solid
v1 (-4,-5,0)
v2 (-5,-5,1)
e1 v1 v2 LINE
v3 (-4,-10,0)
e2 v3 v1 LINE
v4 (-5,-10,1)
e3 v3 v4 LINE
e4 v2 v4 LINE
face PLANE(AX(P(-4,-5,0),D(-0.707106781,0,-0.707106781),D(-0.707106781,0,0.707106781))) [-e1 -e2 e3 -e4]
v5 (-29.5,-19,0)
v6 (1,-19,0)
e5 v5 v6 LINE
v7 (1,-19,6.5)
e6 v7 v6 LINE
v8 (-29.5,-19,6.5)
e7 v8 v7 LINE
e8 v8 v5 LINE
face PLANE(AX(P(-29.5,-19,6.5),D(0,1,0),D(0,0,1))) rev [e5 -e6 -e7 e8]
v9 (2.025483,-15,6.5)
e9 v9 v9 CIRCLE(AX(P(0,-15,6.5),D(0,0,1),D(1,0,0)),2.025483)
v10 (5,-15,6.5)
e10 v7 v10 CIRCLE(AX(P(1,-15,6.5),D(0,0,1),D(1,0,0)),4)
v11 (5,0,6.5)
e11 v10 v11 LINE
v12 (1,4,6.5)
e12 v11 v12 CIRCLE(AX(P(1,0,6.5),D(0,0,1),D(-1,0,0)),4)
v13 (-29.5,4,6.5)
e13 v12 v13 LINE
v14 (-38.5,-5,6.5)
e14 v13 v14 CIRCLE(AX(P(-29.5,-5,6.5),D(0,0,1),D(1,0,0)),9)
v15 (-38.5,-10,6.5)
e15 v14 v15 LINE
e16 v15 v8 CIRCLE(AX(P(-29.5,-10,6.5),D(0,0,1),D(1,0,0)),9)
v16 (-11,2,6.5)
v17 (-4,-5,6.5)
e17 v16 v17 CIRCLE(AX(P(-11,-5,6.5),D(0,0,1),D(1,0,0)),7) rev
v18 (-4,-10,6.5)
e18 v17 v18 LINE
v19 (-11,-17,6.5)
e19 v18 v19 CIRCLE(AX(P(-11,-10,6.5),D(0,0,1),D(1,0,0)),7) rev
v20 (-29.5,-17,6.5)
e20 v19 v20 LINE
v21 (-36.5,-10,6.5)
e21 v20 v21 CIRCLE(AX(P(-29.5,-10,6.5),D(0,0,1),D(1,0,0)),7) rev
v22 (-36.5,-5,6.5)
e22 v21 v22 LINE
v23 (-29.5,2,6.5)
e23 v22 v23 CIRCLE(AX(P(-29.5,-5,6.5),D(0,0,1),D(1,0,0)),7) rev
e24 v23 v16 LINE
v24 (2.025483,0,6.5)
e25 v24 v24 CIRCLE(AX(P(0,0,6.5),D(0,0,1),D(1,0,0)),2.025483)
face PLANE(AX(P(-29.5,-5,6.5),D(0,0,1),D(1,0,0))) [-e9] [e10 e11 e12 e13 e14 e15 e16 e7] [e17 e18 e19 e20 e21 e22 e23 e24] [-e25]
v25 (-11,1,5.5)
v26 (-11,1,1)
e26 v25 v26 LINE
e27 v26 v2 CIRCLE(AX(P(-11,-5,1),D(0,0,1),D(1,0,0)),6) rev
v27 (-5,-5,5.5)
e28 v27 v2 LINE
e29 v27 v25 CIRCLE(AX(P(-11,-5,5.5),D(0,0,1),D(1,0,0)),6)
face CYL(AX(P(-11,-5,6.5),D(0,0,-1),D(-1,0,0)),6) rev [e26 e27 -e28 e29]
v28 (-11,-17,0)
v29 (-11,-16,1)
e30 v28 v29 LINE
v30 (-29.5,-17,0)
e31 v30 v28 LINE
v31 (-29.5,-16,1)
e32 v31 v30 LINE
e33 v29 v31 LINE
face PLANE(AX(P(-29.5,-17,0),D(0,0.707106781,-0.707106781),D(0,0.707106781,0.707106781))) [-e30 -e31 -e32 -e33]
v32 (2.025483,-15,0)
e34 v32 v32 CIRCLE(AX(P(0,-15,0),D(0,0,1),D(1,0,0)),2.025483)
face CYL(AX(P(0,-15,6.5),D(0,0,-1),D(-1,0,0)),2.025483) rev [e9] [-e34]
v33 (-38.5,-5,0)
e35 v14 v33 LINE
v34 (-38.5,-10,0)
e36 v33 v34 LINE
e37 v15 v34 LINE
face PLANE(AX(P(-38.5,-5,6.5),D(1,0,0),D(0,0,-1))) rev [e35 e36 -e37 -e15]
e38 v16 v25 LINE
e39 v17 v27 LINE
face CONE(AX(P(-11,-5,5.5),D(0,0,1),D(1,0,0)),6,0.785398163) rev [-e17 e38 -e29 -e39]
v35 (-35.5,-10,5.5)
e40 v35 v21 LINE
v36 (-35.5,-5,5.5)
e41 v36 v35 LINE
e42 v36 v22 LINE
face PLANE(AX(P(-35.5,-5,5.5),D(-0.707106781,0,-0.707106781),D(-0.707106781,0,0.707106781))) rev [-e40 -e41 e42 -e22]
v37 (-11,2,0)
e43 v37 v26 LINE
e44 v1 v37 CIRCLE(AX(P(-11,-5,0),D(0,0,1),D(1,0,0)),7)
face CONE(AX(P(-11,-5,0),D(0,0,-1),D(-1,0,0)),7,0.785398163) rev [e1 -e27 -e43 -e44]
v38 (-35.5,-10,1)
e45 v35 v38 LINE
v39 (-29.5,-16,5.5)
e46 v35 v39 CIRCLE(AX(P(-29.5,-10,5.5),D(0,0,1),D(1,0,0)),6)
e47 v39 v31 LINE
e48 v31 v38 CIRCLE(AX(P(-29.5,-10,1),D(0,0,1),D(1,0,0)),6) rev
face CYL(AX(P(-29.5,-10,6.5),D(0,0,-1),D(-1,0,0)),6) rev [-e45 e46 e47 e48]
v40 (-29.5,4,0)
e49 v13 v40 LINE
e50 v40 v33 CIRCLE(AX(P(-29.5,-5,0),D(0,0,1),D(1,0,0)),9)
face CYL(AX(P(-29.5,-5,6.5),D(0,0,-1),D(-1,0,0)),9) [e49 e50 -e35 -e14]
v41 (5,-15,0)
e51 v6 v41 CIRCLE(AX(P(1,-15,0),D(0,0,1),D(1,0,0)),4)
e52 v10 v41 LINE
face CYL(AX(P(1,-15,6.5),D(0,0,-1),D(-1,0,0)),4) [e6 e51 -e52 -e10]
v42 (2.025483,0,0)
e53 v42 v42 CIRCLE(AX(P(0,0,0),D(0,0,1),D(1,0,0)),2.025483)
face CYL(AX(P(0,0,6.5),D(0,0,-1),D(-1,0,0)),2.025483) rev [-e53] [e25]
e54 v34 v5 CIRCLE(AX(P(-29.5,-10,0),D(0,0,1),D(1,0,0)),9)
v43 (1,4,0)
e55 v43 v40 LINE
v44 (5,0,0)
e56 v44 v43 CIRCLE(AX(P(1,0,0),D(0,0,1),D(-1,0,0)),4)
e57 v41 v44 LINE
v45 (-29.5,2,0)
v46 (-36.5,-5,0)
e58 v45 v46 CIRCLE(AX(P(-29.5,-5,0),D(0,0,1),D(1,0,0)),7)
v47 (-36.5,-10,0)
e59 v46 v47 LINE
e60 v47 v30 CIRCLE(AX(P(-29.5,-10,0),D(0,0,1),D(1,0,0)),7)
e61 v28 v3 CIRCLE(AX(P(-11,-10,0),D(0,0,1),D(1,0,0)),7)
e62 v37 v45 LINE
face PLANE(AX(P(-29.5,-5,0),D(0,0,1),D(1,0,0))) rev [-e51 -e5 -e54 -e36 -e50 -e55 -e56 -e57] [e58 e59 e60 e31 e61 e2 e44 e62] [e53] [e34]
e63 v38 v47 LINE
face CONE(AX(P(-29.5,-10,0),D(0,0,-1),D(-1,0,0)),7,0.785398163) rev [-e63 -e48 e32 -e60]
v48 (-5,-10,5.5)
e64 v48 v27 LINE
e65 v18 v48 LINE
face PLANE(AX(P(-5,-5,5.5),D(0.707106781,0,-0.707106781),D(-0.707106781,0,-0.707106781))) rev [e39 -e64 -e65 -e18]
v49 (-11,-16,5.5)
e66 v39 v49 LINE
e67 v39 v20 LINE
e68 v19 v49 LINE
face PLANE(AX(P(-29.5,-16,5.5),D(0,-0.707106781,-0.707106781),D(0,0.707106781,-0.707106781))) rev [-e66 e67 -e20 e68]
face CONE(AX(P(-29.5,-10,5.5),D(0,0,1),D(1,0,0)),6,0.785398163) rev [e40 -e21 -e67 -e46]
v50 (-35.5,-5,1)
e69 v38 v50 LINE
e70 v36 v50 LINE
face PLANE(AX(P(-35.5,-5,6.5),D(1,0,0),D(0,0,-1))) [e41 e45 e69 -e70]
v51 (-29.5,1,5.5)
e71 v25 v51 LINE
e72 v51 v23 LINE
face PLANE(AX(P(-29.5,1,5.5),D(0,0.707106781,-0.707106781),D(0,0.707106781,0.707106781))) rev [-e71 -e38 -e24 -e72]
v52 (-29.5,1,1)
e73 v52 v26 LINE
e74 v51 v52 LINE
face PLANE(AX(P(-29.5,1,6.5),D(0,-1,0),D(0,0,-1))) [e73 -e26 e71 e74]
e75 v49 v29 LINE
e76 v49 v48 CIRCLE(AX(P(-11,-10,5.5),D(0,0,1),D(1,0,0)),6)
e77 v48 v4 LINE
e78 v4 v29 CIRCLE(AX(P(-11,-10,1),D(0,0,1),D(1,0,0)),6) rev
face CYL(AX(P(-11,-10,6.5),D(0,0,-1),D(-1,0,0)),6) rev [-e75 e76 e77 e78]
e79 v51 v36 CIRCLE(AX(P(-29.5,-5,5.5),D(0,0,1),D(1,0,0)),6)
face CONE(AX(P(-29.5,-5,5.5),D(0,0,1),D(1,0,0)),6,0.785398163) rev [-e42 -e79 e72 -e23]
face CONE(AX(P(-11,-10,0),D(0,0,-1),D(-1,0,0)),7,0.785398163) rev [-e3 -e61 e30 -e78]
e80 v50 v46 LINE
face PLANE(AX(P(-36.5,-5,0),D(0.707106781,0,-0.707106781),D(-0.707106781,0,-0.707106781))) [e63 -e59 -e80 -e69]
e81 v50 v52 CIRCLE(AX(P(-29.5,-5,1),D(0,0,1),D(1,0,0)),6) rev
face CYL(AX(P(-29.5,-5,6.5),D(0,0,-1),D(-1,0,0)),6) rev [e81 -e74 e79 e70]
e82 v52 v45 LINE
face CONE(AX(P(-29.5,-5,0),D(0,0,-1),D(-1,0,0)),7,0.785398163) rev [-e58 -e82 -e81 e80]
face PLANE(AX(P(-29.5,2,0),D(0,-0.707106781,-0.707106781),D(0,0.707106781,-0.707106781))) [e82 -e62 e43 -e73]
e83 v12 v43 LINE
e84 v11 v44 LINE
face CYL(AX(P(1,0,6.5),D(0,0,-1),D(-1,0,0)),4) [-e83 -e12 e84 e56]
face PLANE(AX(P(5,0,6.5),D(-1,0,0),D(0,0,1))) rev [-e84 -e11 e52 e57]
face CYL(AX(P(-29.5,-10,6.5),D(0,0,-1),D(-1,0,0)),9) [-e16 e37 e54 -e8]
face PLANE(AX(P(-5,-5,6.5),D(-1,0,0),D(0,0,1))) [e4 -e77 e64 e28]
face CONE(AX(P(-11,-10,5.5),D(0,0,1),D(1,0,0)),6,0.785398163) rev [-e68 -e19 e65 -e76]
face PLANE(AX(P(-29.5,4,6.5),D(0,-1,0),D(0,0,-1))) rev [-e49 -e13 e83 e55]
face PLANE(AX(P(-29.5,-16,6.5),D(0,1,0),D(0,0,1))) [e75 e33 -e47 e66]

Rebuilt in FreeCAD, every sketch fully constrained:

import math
import FreeCAD as App
import Part
import Sketcher
from FreeCAD import Vector
Q = App.Units.Quantity


def edges_at(feature, points):
    """Names of the edges that pass closest to the given points."""
    edges = feature.Shape.Edges
    near = lambda p: min(range(len(edges)), key=lambda i: edges[i].distToShape(Part.Vertex(*p))[0])
    return sorted({f"Edge{near(p) + 1}" for p in points})

doc = App.newDocument("Part")
params = doc.addObject("Spreadsheet::Sheet", "Params")
for row, (alias, value) in enumerate([
    ("sketch1_radius", "9 mm"),
    ("sketch1_radius2", "4 mm"),
    ("sketch1_radius3", "6 mm"),
    ("sketch1_height", "5 mm"),
    ("sketch1_width", "30.5 mm"),
    ("pad1_length", "6.5 mm"),
    ("chamfer_size", "1 mm"),
], start=1):
    params.set(f"A{row}", alias)
    params.set(f"B{row}", "=" + value)
    params.setAlias(f"B{row}", alias)

body = doc.addObject("PartDesign::Body", "Body")

# Sketch on XY plane
sketch1 = doc.addObject("Sketcher::SketchObject", "Sketch")
body.addObject(sketch1)
sketch1.AttachmentSupport = (doc.XY_Plane, [""])
sketch1.MapMode = "FlatFace"
sketch1.addGeometry([
    Part.LineSegment(Vector(1, 4, 0), Vector(-29.5, 4, 0)),  # 0
    Part.ArcOfCircle(Part.Circle(Vector(-29.5, -5, 0), Vector(0, 0, 1), 9), math.radians(90), math.radians(180)),  # 1
    Part.LineSegment(Vector(-38.5, -5, 0), Vector(-38.5, -10, 0)),  # 2
    Part.ArcOfCircle(Part.Circle(Vector(-29.5, -10, 0), Vector(0, 0, 1), 9), math.radians(180), math.radians(270)),  # 3
    Part.LineSegment(Vector(-29.5, -19, 0), Vector(1, -19, 0)),  # 4
    Part.ArcOfCircle(Part.Circle(Vector(1, -15, 0), Vector(0, 0, 1), 4), math.radians(-90), math.radians(0)),  # 5
    Part.LineSegment(Vector(5, -15, 0), Vector(5, 0, 0)),  # 6
    Part.ArcOfCircle(Part.Circle(Vector(1, 0, 0), Vector(0, 0, 1), 4), math.radians(0), math.radians(90)),  # 7
    Part.Circle(Vector(0, -15, 0), Vector(0, 0, 1), 2.025483),  # 8
    Part.Circle(Vector(0, 0, 0), Vector(0, 0, 1), 2.025483),  # 9
    Part.LineSegment(Vector(-29.5, 1, 0), Vector(-11, 1, 0)),  # 10
    Part.ArcOfCircle(Part.Circle(Vector(-11, -5, 0), Vector(0, 0, 1), 6), math.radians(0), math.radians(90)),  # 11
    Part.LineSegment(Vector(-5, -5, 0), Vector(-5, -10, 0)),  # 12
    Part.ArcOfCircle(Part.Circle(Vector(-11, -10, 0), Vector(0, 0, 1), 6), math.radians(-90), math.radians(0)),  # 13
    Part.LineSegment(Vector(-11, -16, 0), Vector(-29.5, -16, 0)),  # 14
    Part.ArcOfCircle(Part.Circle(Vector(-29.5, -10, 0), Vector(0, 0, 1), 6), math.radians(180), math.radians(270)),  # 15
    Part.LineSegment(Vector(-35.5, -10, 0), Vector(-35.5, -5, 0)),  # 16
    Part.ArcOfCircle(Part.Circle(Vector(-29.5, -5, 0), Vector(0, 0, 1), 6), math.radians(90), math.radians(180)),  # 17
], False)
sketch1.addConstraint([
    Sketcher.Constraint("Tangent", 0, 2, 1, 1),
    Sketcher.Constraint("Tangent", 1, 2, 2, 1),
    Sketcher.Constraint("Tangent", 2, 2, 3, 1),
    Sketcher.Constraint("Tangent", 3, 2, 4, 1),
    Sketcher.Constraint("Tangent", 4, 2, 5, 1),
    Sketcher.Constraint("Tangent", 5, 2, 6, 1),
    Sketcher.Constraint("Tangent", 6, 2, 7, 1),
    Sketcher.Constraint("Tangent", 7, 2, 0, 1),
    Sketcher.Constraint("Tangent", 10, 2, 11, 2),
    Sketcher.Constraint("Tangent", 11, 1, 12, 1),
    Sketcher.Constraint("Tangent", 12, 2, 13, 2),
    Sketcher.Constraint("Tangent", 13, 1, 14, 1),
    Sketcher.Constraint("Tangent", 14, 2, 15, 2),
    Sketcher.Constraint("Tangent", 15, 1, 16, 1),
    Sketcher.Constraint("Tangent", 16, 2, 17, 2),
    Sketcher.Constraint("Tangent", 17, 1, 10, 1),
    Sketcher.Constraint("Horizontal", 0),
    Sketcher.Constraint("Vertical", 2),
    Sketcher.Constraint("Horizontal", 4),
    Sketcher.Constraint("Vertical", 6),
    Sketcher.Constraint("Horizontal", 10),
    Sketcher.Constraint("Vertical", 12),
    Sketcher.Constraint("Horizontal", 14),
    Sketcher.Constraint("Vertical", 16),
    Sketcher.Constraint("Coincident", 9, 3, -1, 1),
    Sketcher.Constraint("Coincident", 15, 3, 3, 3),
    Sketcher.Constraint("Coincident", 17, 3, 1, 3),
    Sketcher.Constraint("Equal", 1, 3),
    Sketcher.Constraint("Equal", 5, 7),
    Sketcher.Constraint("Equal", 8, 9),
    Sketcher.Constraint("Equal", 11, 13),
    Sketcher.Constraint("Equal", 13, 15),
    Sketcher.Constraint("PointOnObject", 7, 3, -1),
    Sketcher.Constraint("PointOnObject", 8, 3, -2),
    Sketcher.Constraint("Horizontal", 5, 3, 8, 3),
    Sketcher.Constraint("Radius", 1, Q("9 mm")),
    Sketcher.Constraint("Radius", 5, Q("4 mm")),
    Sketcher.Constraint("Radius", 11, Q("6 mm")),
    Sketcher.Constraint("DistanceY", 2, 2, 2, 1, Q("5 mm")),
    Sketcher.Constraint("DistanceX", 0, 2, 0, 1, Q("30.5 mm")),
    Sketcher.Constraint("DistanceX", 10, 1, 10, 2, Q("18.5 mm")),
    Sketcher.Constraint("DistanceX", -1, 1, 5, 3, Q("1 mm")),
    Sketcher.Constraint("Diameter", 8, Q("4.050967 mm")),
])
sketch1.setExpression("Constraints[35]", "Params.sketch1_radius")
sketch1.setExpression("Constraints[36]", "Params.sketch1_radius2")
sketch1.setExpression("Constraints[37]", "Params.sketch1_radius3")
sketch1.setExpression("Constraints[38]", "Params.sketch1_height")
sketch1.setExpression("Constraints[39]", "Params.sketch1_width")
pad1 = doc.addObject("PartDesign::Pad", "Pad")
body.addObject(pad1)
pad1.Profile = sketch1
pad1.setExpression("Length", "Params.pad1_length")
doc.recompute()

chamfer = doc.addObject("PartDesign::Chamfer", "Chamfer")
body.addObject(chamfer)
chamfer.Base = (pad1, edges_at(pad1, [
    (-6.757, -0.757, 0),
    (-20.25, 1, 0),
    (-33.743, -0.757, 0),
    (-35.5, -7.5, 0),
    (-33.743, -14.243, 0),
    (-20.25, -16, 0),
    (-6.757, -14.243, 0),
    (-5, -7.5, 0),
    (-6.757, -0.757, 6.5),
    (-20.25, 1, 6.5),
    (-33.743, -0.757, 6.5),
    (-35.5, -7.5, 6.5),
    (-33.743, -14.243, 6.5),
    (-20.25, -16, 6.5),
    (-6.757, -14.243, 6.5),
    (-5, -7.5, 6.5),
]))
chamfer.setExpression("Size", "Params.chamfer_size")

doc.recompute()
